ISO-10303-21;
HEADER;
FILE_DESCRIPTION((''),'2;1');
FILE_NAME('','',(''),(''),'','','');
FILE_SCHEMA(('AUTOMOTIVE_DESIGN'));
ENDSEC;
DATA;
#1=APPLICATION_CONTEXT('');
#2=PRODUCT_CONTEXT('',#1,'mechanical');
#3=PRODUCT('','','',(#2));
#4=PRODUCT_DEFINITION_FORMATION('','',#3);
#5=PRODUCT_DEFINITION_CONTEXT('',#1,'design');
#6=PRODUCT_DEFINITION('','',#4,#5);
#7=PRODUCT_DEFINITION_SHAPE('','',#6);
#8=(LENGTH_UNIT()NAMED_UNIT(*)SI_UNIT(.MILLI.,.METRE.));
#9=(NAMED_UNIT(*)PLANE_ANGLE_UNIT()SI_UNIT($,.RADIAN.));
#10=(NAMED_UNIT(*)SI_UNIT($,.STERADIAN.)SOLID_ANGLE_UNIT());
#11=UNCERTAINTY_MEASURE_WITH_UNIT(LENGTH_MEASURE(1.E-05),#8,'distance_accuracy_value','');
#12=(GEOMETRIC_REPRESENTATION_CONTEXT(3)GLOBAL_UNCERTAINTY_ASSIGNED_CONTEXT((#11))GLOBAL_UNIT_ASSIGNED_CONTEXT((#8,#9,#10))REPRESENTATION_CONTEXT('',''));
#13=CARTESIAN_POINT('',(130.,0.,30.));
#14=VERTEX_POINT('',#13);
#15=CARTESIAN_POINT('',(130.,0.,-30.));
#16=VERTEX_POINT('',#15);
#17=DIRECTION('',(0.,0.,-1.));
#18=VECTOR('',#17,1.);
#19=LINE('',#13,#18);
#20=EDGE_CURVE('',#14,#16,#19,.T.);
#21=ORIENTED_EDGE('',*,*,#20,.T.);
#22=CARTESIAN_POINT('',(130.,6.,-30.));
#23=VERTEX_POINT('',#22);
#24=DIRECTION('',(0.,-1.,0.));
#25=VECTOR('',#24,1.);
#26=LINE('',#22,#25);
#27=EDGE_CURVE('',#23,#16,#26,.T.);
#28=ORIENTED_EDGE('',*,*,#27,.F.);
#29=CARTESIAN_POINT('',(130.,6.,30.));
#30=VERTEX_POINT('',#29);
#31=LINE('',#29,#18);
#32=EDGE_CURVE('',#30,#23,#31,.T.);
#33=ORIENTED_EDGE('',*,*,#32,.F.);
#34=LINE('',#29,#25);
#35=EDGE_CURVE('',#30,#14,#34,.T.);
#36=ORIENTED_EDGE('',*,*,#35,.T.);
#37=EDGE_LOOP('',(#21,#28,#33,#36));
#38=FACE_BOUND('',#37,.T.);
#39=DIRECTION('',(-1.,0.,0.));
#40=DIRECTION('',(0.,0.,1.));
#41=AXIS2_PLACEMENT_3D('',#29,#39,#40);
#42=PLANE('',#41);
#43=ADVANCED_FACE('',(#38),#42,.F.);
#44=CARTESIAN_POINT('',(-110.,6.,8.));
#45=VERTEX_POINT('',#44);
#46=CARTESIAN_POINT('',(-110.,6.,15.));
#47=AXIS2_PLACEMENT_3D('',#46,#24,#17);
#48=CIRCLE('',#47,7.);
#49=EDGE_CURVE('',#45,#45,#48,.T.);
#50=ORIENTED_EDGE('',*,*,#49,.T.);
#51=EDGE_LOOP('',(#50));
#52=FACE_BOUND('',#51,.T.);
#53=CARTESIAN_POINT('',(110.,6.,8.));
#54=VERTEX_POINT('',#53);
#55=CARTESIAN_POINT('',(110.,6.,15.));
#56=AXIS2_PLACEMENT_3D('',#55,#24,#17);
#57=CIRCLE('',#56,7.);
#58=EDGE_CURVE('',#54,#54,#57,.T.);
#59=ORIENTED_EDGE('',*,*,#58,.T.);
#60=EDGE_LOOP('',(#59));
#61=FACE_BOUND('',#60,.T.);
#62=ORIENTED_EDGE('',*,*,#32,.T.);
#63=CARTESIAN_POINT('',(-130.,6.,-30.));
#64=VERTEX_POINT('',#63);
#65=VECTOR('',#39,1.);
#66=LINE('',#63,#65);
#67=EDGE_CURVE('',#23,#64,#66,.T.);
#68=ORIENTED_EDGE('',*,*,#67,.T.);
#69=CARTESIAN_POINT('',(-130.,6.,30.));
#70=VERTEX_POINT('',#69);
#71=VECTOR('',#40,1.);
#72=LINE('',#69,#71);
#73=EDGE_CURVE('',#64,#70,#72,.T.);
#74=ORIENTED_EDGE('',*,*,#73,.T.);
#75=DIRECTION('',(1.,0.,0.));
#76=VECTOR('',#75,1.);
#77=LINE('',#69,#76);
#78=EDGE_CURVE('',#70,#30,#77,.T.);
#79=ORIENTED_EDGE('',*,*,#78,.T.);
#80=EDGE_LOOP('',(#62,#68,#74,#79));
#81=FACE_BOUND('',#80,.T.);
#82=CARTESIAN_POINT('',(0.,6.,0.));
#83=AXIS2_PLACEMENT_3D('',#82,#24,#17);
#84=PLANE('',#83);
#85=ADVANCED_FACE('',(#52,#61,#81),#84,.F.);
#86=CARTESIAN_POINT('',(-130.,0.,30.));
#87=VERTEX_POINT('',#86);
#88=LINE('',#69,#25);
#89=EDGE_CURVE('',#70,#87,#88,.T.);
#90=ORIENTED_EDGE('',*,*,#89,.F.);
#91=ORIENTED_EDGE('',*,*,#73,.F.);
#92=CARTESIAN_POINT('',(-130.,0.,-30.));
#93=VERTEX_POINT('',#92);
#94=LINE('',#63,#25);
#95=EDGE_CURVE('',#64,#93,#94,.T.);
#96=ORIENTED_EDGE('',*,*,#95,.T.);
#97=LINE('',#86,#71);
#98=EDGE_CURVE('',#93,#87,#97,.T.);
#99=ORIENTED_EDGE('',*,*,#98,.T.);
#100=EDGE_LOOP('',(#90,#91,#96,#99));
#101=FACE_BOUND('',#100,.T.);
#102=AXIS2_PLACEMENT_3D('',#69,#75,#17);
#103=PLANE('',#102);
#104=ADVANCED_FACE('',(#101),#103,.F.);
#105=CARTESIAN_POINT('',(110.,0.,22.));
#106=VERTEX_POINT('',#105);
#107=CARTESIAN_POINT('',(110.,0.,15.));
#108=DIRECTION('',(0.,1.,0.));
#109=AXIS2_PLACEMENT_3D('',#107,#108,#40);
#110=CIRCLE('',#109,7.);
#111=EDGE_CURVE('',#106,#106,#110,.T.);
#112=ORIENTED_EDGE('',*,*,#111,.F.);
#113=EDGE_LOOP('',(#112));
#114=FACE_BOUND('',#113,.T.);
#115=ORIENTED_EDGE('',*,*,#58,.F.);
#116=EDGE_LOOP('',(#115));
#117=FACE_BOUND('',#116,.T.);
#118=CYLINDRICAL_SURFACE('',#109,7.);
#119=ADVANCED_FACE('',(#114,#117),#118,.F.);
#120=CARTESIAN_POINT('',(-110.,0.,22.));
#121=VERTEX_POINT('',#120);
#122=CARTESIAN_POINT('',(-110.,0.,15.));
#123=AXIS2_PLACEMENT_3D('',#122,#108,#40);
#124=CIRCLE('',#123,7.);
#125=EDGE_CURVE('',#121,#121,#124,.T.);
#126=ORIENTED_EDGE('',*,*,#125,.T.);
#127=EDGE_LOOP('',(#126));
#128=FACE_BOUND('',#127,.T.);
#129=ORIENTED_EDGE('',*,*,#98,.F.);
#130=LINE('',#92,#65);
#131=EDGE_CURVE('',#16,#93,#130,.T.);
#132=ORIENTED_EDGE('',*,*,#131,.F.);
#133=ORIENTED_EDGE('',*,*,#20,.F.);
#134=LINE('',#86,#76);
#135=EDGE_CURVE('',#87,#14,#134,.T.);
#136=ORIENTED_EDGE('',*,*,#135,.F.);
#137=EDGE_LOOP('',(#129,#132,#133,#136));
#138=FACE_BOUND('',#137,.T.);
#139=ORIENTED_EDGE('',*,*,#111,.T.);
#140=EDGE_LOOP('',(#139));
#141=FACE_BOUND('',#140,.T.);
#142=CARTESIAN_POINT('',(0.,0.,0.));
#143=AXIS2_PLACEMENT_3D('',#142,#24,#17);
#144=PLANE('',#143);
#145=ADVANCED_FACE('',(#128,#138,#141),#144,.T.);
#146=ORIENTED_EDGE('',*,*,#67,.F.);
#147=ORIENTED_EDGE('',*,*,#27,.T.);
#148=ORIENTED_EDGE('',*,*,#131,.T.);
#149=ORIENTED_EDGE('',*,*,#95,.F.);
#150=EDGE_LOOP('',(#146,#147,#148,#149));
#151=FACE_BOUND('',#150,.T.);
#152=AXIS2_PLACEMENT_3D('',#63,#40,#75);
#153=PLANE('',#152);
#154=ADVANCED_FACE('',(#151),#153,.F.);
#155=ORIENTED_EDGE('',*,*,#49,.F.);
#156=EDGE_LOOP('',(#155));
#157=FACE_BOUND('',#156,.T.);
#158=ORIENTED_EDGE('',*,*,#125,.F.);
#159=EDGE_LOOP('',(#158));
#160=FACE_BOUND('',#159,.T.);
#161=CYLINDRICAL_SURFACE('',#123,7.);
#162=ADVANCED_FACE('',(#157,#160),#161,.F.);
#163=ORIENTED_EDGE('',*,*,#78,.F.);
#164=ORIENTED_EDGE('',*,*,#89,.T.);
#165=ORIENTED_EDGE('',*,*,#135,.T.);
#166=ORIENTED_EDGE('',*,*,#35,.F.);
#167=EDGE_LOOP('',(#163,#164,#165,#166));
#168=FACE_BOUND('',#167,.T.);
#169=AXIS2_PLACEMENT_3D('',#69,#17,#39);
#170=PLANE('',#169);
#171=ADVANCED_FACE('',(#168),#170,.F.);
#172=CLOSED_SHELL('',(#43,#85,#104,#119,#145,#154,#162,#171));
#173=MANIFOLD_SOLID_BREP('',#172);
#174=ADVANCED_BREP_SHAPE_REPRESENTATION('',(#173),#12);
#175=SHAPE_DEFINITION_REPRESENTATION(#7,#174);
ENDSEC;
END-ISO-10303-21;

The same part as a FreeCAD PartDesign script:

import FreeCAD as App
import Part
import Sketcher

V = App.Vector
Q = App.Units.Quantity


def add_polygon(sketch, points):
    """Adds a closed chain of lines whose ends are joined by coincident constraints."""
    first, n = sketch.GeometryCount, len(points)
    for a, b in zip(points, points[1:] + points[:1]):
        sketch.addGeometry(Part.LineSegment(App.Vector(*a, 0), App.Vector(*b, 0)), False)
    for i in range(n):
        sketch.addConstraint(Sketcher.Constraint("Coincident", first + i, 2, first + (i + 1) % n, 1))

doc = App.newDocument("Part")
body = doc.addObject("PartDesign::Body", "Body")

# Sketch on XZ plane
sketch1 = doc.addObject("Sketcher::SketchObject", "Sketch")
body.addObject(sketch1)
sketch1.AttachmentSupport = (doc.XZ_Plane, [""])
sketch1.MapMode = "FlatFace"
add_polygon(sketch1, [(-130, -30), (-130, 30), (130, 30), (130, -30)])  # lines 0-3
sketch1.addConstraint([
    Sketcher.Constraint("Vertical", 0),
    Sketcher.Constraint("Horizontal", 1),
    Sketcher.Constraint("Vertical", 2),
    Sketcher.Constraint("Horizontal", 3),
    Sketcher.Constraint("Symmetric", 0, 2, 2, 2, -1, 1),
    Sketcher.Constraint("DistanceX", 1, 1, 1, 2, Q("260 mm")),
    Sketcher.Constraint("DistanceY", 0, 1, 0, 2, Q("60 mm")),
])
pad1 = doc.addObject("PartDesign::Pad", "Pad")
body.addObject(pad1)
pad1.Profile = sketch1
pad1.Length = 6
pad1.Reversed = True

# Sketch on XZ plane
sketch2 = doc.addObject("Sketcher::SketchObject", "Sketch001")
body.addObject(sketch2)
sketch2.AttachmentSupport = (doc.XZ_Plane, [""])
sketch2.MapMode = "FlatFace"
sketch2.AttachmentOffset = App.Placement(V(0, 0, -6), App.Rotation())
sketch2.addGeometry([
    Part.Circle(V(110, 15, 0), V(0, 0, 1), 7),
    Part.Circle(V(-110, 15, 0), V(0, 0, 1), 7),
], False)
sketch2.addConstraint([
    Sketcher.Constraint("Equal", 0, 1),
    Sketcher.Constraint("Symmetric", 0, 3, 1, 3, -2),
    Sketcher.Constraint("Diameter", 0, Q("14 mm")),
    Sketcher.Constraint("DistanceX", -1, 1, 0, 3, Q("110 mm")),
    Sketcher.Constraint("DistanceY", -1, 1, 0, 3, Q("15 mm")),
])
pocket1 = doc.addObject("PartDesign::Pocket", "Pocket")
body.addObject(pocket1)
pocket1.Profile = sketch2
pocket1.Type = "ThroughAll"
pocket1.Midplane = True

doc.recompute()
